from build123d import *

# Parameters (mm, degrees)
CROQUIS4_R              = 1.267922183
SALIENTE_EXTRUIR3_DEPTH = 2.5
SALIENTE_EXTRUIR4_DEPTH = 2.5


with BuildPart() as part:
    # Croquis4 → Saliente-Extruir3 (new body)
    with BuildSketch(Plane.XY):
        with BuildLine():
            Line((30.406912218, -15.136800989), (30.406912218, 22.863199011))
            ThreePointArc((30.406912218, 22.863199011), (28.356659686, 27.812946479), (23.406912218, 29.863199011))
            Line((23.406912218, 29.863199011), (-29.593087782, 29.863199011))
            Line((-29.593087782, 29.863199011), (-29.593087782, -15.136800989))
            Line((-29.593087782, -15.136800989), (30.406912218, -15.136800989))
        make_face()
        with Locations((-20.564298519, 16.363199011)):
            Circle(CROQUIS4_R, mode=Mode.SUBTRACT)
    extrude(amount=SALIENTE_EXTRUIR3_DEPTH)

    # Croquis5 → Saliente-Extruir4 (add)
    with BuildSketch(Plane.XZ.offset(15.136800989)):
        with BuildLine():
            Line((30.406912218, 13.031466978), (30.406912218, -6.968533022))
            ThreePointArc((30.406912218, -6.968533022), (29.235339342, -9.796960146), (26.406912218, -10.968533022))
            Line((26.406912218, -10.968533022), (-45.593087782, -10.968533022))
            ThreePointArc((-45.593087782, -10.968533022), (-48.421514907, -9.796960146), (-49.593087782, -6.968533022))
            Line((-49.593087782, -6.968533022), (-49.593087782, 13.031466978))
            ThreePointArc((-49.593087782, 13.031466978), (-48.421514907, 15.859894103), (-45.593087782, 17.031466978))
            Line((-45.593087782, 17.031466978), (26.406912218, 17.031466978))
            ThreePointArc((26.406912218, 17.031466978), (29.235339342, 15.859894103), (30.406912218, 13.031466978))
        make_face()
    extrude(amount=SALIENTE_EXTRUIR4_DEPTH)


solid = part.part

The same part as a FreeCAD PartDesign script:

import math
import FreeCAD as App
import Part
import Sketcher

V = App.Vector

doc = App.newDocument("Part")
body = doc.addObject("PartDesign::Body", "Body")

# Sketch on XY plane
sketch1 = doc.addObject("Sketcher::SketchObject", "Sketch")
body.addObject(sketch1)
sketch1.AttachmentSupport = (doc.XY_Plane, [""])
sketch1.MapMode = "FlatFace"
sketch1.addGeometry(Part.LineSegment(V(30.4, -15.1, 0), V(30.4, 22.9, 0)), False)
sketch1.addGeometry(Part.ArcOfCircle(Part.Circle(V(23.4, 22.9, 0), V(0, 0, 1), 7), math.radians(0), math.radians(90)), False)
sketch1.addGeometry(Part.LineSegment(V(23.4, 29.9, 0), V(-29.6, 29.9, 0)), False)
sketch1.addGeometry(Part.LineSegment(V(-29.6, 29.9, 0), V(-29.6, -15.1, 0)), False)
sketch1.addGeometry(Part.LineSegment(V(-29.6, -15.1, 0), V(30.4, -15.1, 0)), False)
sketch1.addGeometry(Part.Circle(V(-20.6, 16.4, 0), V(0, 0, 1), 1.3), False)
sketch1.addConstraint(Sketcher.Constraint("Tangent", 0, 2, 1, 1))
sketch1.addConstraint(Sketcher.Constraint("Tangent", 1, 2, 2, 1))
sketch1.addConstraint(Sketcher.Constraint("Coincident", 2, 2, 3, 1))
sketch1.addConstraint(Sketcher.Constraint("Coincident", 3, 2, 4, 1))
sketch1.addConstraint(Sketcher.Constraint("Coincident", 4, 2, 0, 1))
sketch1.addConstraint(Sketcher.Constraint("Vertical", 0))
sketch1.addConstraint(Sketcher.Constraint("Horizontal", 2))
sketch1.addConstraint(Sketcher.Constraint("Vertical", 3))
sketch1.addConstraint(Sketcher.Constraint("Horizontal", 4))
sketch1.addConstraint(Sketcher.Constraint("Radius", 1, 7.0))
sketch1.addConstraint(Sketcher.Constraint("DistanceX", 2, 2, 2, 1, 53.0))
sketch1.addConstraint(Sketcher.Constraint("DistanceY", 0, 1, 0, 2, 38.0))
sketch1.addConstraint(Sketcher.Constraint("DistanceY", 5, 3, 1, 3, 6.5))
sketch1.addConstraint(Sketcher.Constraint("Diameter", 5, 2.535844))
sketch1.addConstraint(Sketcher.Constraint("DistanceY", -1, 1, 1, 3, 22.863199))
sketch1.addConstraint(Sketcher.Constraint("DistanceX", 5, 3, -1, 1, 20.564299))
sketch1.addConstraint(Sketcher.Constraint("DistanceX", 5, 3, 1, 3, 43.971211))
pad1 = doc.addObject("PartDesign::Pad", "Pad")
body.addObject(pad1)
pad1.Profile = sketch1
pad1.Length = 2.5

# Sketch on XZ plane
sketch2 = doc.addObject("Sketcher::SketchObject", "Sketch001")
body.addObject(sketch2)
sketch2.AttachmentSupport = (doc.XZ_Plane, [""])
sketch2.MapMode = "FlatFace"
sketch2.AttachmentOffset = App.Placement(V(0, 0, 15.136801), App.Rotation())
sketch2.addGeometry(Part.LineSegment(V(30.4, -7, 0), V(30.4, 13, 0)), False)
sketch2.addGeometry(Part.ArcOfCircle(Part.Circle(V(26.4, 13, 0), V(0, 0, 1), 4), math.radians(0), math.radians(90)), False)
sketch2.addGeometry(Part.LineSegment(V(26.4, 17, 0), V(-45.6, 17, 0)), False)
sketch2.addGeometry(Part.ArcOfCircle(Part.Circle(V(-45.6, 13, 0), V(0, 0, 1), 4), math.radians(90), math.radians(180)), False)
sketch2.addGeometry(Part.LineSegment(V(-49.6, 13, 0), V(-49.6, -7, 0)), False)
sketch2.addGeometry(Part.ArcOfCircle(Part.Circle(V(-45.6, -7, 0), V(0, 0, 1), 4), math.radians(-180), math.radians(-90)), False)
sketch2.addGeometry(Part.LineSegment(V(-45.6, -11, 0), V(26.4, -11, 0)), False)
sketch2.addGeometry(Part.ArcOfCircle(Part.Circle(V(26.4, -7, 0), V(0, 0, 1), 4), math.radians(-90), math.radians(0)), False)
sketch2.addConstraint(Sketcher.Constraint("Tangent", 0, 2, 1, 1))
sketch2.addConstraint(Sketcher.Constraint("Tangent", 1, 2, 2, 1))
sketch2.addConstraint(Sketcher.Constraint("Tangent", 2, 2, 3, 1))
sketch2.addConstraint(Sketcher.Constraint("Tangent", 3, 2, 4, 1))
sketch2.addConstraint(Sketcher.Constraint("Tangent", 4, 2, 5, 1))
sketch2.addConstraint(Sketcher.Constraint("Tangent", 5, 2, 6, 1))
sketch2.addConstraint(Sketcher.Constraint("Tangent", 6, 2, 7, 1))
sketch2.addConstraint(Sketcher.Constraint("Tangent", 7, 2, 0, 1))
sketch2.addConstraint(Sketcher.Constraint("Vertical", 0))
sketch2.addConstraint(Sketcher.Constraint("Horizontal", 2))
sketch2.addConstraint(Sketcher.Constraint("Vertical", 4))
sketch2.addConstraint(Sketcher.Constraint("Horizontal", 6))
sketch2.addConstraint(Sketcher.Constraint("Equal", 1, 3))
sketch2.addConstraint(Sketcher.Constraint("Equal", 3, 5))
sketch2.addConstraint(Sketcher.Constraint("Equal", 5, 7))
sketch2.addConstraint(Sketcher.Constraint("Radius", 1, 4.0))
sketch2.addConstraint(Sketcher.Constraint("DistanceX", 2, 2, 2, 1, 72.0))
sketch2.addConstraint(Sketcher.Constraint("DistanceY", 0, 1, 0, 2, 20.0))
sketch2.addConstraint(Sketcher.Constraint("DistanceX", -1, 1, 1, 3, 26.406912))
sketch2.addConstraint(Sketcher.Constraint("DistanceY", -1, 1, 1, 3, 13.031467))
pad2 = doc.addObject("PartDesign::Pad", "Pad001")
body.addObject(pad2)
pad2.Profile = sketch2
pad2.Length = 2.5

doc.recompute()
